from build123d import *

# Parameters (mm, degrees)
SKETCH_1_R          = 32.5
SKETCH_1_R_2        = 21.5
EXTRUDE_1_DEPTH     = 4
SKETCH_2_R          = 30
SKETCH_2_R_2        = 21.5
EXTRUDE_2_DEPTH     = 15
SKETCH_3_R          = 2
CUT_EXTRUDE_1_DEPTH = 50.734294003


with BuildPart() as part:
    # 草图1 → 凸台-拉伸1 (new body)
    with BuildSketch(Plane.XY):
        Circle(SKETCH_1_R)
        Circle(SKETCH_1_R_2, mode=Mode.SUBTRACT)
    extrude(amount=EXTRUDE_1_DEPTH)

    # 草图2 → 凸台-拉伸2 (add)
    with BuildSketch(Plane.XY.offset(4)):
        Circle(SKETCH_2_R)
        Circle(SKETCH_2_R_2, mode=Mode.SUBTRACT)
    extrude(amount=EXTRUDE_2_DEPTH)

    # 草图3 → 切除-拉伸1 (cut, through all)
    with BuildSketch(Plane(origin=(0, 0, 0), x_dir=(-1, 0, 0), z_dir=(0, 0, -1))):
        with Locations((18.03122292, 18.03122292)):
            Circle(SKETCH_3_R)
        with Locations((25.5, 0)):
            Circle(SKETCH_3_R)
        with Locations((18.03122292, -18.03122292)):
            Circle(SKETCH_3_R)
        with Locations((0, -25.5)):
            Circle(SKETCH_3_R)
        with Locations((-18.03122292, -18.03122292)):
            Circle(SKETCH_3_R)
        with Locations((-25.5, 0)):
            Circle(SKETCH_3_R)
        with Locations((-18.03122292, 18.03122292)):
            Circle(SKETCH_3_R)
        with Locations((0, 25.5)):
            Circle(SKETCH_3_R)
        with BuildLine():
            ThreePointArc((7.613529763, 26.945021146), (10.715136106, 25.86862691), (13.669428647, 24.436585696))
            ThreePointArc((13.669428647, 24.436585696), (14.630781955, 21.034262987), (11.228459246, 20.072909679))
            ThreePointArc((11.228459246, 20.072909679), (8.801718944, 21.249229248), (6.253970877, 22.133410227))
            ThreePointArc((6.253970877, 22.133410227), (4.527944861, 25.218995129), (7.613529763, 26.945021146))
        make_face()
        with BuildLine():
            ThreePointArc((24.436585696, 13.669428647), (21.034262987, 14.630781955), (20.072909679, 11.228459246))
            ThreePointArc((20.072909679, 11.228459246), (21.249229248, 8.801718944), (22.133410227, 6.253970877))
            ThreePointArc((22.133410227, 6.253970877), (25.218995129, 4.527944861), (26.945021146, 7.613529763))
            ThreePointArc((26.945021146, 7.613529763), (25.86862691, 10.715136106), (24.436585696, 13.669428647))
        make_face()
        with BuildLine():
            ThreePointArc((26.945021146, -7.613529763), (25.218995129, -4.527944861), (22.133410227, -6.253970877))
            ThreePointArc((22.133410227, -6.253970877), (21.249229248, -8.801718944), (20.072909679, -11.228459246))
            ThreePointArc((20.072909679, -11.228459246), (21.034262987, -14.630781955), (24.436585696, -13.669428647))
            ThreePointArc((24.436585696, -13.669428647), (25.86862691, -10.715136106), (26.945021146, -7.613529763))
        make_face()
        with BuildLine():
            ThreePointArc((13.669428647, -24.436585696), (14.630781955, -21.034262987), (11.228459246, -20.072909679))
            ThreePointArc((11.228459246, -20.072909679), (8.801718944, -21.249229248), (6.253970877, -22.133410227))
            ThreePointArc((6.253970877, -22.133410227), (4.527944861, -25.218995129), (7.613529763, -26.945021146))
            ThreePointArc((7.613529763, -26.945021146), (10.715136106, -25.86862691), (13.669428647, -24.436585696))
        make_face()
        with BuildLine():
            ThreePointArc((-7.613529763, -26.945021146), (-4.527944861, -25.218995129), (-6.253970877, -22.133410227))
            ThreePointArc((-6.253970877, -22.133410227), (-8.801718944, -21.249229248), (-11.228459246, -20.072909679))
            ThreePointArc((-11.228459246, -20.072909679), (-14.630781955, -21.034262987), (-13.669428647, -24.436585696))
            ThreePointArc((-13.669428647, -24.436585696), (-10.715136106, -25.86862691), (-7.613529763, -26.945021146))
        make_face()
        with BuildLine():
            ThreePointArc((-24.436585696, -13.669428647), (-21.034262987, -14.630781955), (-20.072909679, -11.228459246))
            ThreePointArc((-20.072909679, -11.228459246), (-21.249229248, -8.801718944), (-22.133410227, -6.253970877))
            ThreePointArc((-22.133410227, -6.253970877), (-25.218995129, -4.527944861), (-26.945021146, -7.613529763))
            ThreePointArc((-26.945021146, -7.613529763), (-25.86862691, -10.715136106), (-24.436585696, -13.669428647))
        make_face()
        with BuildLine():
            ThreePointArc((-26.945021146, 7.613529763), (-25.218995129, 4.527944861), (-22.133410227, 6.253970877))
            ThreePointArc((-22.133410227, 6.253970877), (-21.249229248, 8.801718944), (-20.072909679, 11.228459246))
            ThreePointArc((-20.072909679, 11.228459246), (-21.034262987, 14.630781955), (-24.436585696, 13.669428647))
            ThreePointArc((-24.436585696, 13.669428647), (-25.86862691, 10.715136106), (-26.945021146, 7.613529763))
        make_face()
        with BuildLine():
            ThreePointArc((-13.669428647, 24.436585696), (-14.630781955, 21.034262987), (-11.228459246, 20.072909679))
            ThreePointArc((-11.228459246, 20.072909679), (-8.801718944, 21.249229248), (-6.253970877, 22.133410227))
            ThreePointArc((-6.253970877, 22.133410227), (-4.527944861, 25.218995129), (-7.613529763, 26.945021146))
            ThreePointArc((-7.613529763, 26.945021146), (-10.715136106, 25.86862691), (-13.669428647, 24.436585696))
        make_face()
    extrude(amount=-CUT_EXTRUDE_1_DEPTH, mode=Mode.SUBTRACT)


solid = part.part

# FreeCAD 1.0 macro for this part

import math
import FreeCAD as App
import Part
import Sketcher
from FreeCAD import Vector
Q = App.Units.Quantity

doc = App.newDocument("Part")
body = doc.addObject("PartDesign::Body", "Body")

# Sketch on XY plane
sketch1 = body.newObject("Sketcher::SketchObject", "Sketch")
sketch1.AttachmentSupport = (doc.getObject("XY_Plane"), [""])
sketch1.MapMode = "FlatFace"
sketch1.addGeometry([
    Part.Circle(Vector(0, 0, 0), Vector(0, 0, 1), 32.5),
    Part.Circle(Vector(0, 0, 0), Vector(0, 0, 1), 21.5),
], False)
sketch1.addConstraint([
    Sketcher.Constraint("Coincident", 0, 3, -1, 1),
    Sketcher.Constraint("Coincident", 1, 3, -1, 1),
    Sketcher.Constraint("Diameter", 0, Q("65 mm")),
    Sketcher.Constraint("Diameter", 1, Q("43 mm")),
])
pad1 = body.newObject("PartDesign::Pad", "Pad")
pad1.Profile = sketch1
pad1.Length = 4

# Sketch on XY plane
sketch2 = body.newObject("Sketcher::SketchObject", "Sketch001")
sketch2.AttachmentSupport = (doc.getObject("XY_Plane"), [""])
sketch2.MapMode = "FlatFace"
sketch2.AttachmentOffset = App.Placement(Vector(0, 0, 4), App.Rotation())
sketch2.addGeometry([
    Part.Circle(Vector(0, 0, 0), Vector(0, 0, 1), 30),
    Part.Circle(Vector(0, 0, 0), Vector(0, 0, 1), 21.5),
], False)
sketch2.addConstraint([
    Sketcher.Constraint("Coincident", 0, 3, -1, 1),
    Sketcher.Constraint("Coincident", 1, 3, -1, 1),
    Sketcher.Constraint("Diameter", 0, Q("60 mm")),
    Sketcher.Constraint("Diameter", 1, Q("43 mm")),
])
pad2 = body.newObject("PartDesign::Pad", "Pad001")
pad2.Profile = sketch2
pad2.Length = 15

# Sketch on XY plane
sketch3 = body.newObject("Sketcher::SketchObject", "Sketch002")
sketch3.AttachmentSupport = (doc.getObject("XY_Plane"), [""])
sketch3.MapMode = "FlatFace"
sketch3.addGeometry([
    Part.Circle(Vector(-18.031223, 18.031223, 0), Vector(0, 0, 1), 2),  # 0
    Part.Circle(Vector(-25.5, 0, 0), Vector(0, 0, 1), 2),  # 1
    Part.Circle(Vector(-18.031223, -18.031223, 0), Vector(0, 0, 1), 2),  # 2
    Part.Circle(Vector(0, -25.5, 0), Vector(0, 0, 1), 2),  # 3
    Part.Circle(Vector(18.031223, -18.031223, 0), Vector(0, 0, 1), 2),  # 4
    Part.Circle(Vector(25.5, 0, 0), Vector(0, 0, 1), 2),  # 5
    Part.Circle(Vector(18.031223, 18.031223, 0), Vector(0, 0, 1), 2),  # 6
    Part.Circle(Vector(0, 25.5, 0), Vector(0, 0, 1), 2),  # 7
    Part.ArcOfCircle(Part.Circle(Vector(0, 0, 0), Vector(0, 0, 1), 28), math.radians(105.77806), math.radians(119.22194)),  # 8
    Part.ArcOfCircle(Part.Circle(Vector(-6.93375, 24.539216, 0), Vector(0, 0, 1), 2.5), math.radians(-74.22194), math.radians(105.77806)),  # 9
    Part.ArcOfCircle(Part.Circle(Vector(0, 0, 0), Vector(0, 0, 1), 23), math.radians(105.77806), math.radians(119.22194)),  # 10
    Part.ArcOfCircle(Part.Circle(Vector(-12.448944, 22.254748, 0), Vector(0, 0, 1), 2.5), math.radians(119.22194), math.radians(299.22194)),  # 11
    Part.ArcOfCircle(Part.Circle(Vector(-22.254748, 12.448944, 0), Vector(0, 0, 1), 2.5), math.radians(-29.22194), math.radians(150.77806)),  # 12
    Part.ArcOfCircle(Part.Circle(Vector(0, 0, 0), Vector(0, 0, 1), 23), math.radians(150.77806), math.radians(164.22194)),  # 13
    Part.ArcOfCircle(Part.Circle(Vector(-24.539216, 6.93375, 0), Vector(0, 0, 1), 2.5), math.radians(164.22194), math.radians(344.22194)),  # 14
    Part.ArcOfCircle(Part.Circle(Vector(0, 0, 0), Vector(0, 0, 1), 28), math.radians(150.77806), math.radians(164.22194)),  # 15
    Part.ArcOfCircle(Part.Circle(Vector(-24.539216, -6.93375, 0), Vector(0, 0, 1), 2.5), math.radians(15.77806), math.radians(195.77806)),  # 16
    Part.ArcOfCircle(Part.Circle(Vector(0, 0, 0), Vector(0, 0, 1), 23), math.radians(-164.22194), math.radians(-150.77806)),  # 17
    Part.ArcOfCircle(Part.Circle(Vector(-22.254748, -12.448944, 0), Vector(0, 0, 1), 2.5), math.radians(-150.77806), math.radians(29.22194)),  # 18
    Part.ArcOfCircle(Part.Circle(Vector(0, 0, 0), Vector(0, 0, 1), 28), math.radians(-164.22194), math.radians(-150.77806)),  # 19
    Part.ArcOfCircle(Part.Circle(Vector(-12.448944, -22.254748, 0), Vector(0, 0, 1), 2.5), math.radians(60.77806), math.radians(240.77806)),  # 20
    Part.ArcOfCircle(Part.Circle(Vector(0, 0, 0), Vector(0, 0, 1), 23), math.radians(-119.22194), math.radians(-105.77806)),  # 21
    Part.ArcOfCircle(Part.Circle(Vector(-6.93375, -24.539216, 0), Vector(0, 0, 1), 2.5), math.radians(-105.77806), math.radians(74.22194)),  # 22
    Part.ArcOfCircle(Part.Circle(Vector(0, 0, 0), Vector(0, 0, 1), 28), math.radians(-119.22194), math.radians(-105.77806)),  # 23
    Part.ArcOfCircle(Part.Circle(Vector(6.93375, -24.539216, 0), Vector(0, 0, 1), 2.5), math.radians(105.77806), math.radians(285.77806)),  # 24
    Part.ArcOfCircle(Part.Circle(Vector(0, 0, 0), Vector(0, 0, 1), 23), math.radians(-74.22194), math.radians(-60.77806)),  # 25
    Part.ArcOfCircle(Part.Circle(Vector(12.448944, -22.254748, 0), Vector(0, 0, 1), 2.5), math.radians(-60.77806), math.radians(119.22194)),  # 26
    Part.ArcOfCircle(Part.Circle(Vector(0, 0, 0), Vector(0, 0, 1), 28), math.radians(-74.22194), math.radians(-60.77806)),  # 27
    Part.ArcOfCircle(Part.Circle(Vector(22.254748, -12.448944, 0), Vector(0, 0, 1), 2.5), math.radians(150.77806), math.radians(330.77806)),  # 28
    Part.ArcOfCircle(Part.Circle(Vector(0, 0, 0), Vector(0, 0, 1), 23), math.radians(-29.22194), math.radians(-15.77806)),  # 29
    Part.ArcOfCircle(Part.Circle(Vector(24.539216, -6.93375, 0), Vector(0, 0, 1), 2.5), math.radians(-15.77806), math.radians(164.22194)),  # 30
    Part.ArcOfCircle(Part.Circle(Vector(0, 0, 0), Vector(0, 0, 1), 28), math.radians(-29.22194), math.radians(-15.77806)),  # 31
    Part.ArcOfCircle(Part.Circle(Vector(24.539216, 6.93375, 0), Vector(0, 0, 1), 2.5), math.radians(-164.22194), math.radians(15.77806)),  # 32
    Part.ArcOfCircle(Part.Circle(Vector(0, 0, 0), Vector(0, 0, 1), 23), math.radians(15.77806), math.radians(29.22194)),  # 33
    Part.ArcOfCircle(Part.Circle(Vector(22.254748, 12.448944, 0), Vector(0, 0, 1), 2.5), math.radians(29.22194), math.radians(209.22194)),  # 34
    Part.ArcOfCircle(Part.Circle(Vector(0, 0, 0), Vector(0, 0, 1), 28), math.radians(15.77806), math.radians(29.22194)),  # 35
    Part.ArcOfCircle(Part.Circle(Vector(12.448944, 22.254748, 0), Vector(0, 0, 1), 2.5), math.radians(-119.22194), math.radians(60.77806)),  # 36
    Part.ArcOfCircle(Part.Circle(Vector(0, 0, 0), Vector(0, 0, 1), 23), math.radians(60.77806), math.radians(74.22194)),  # 37
    Part.ArcOfCircle(Part.Circle(Vector(6.93375, 24.539216, 0), Vector(0, 0, 1), 2.5), math.radians(74.22194), math.radians(254.22194)),  # 38
    Part.ArcOfCircle(Part.Circle(Vector(0, 0, 0), Vector(0, 0, 1), 28), math.radians(60.77806), math.radians(74.22194)),  # 39
], False)
sketch3.addConstraint([
    Sketcher.Constraint("Tangent", 8, 1, 9, 2),
    Sketcher.Constraint("Tangent", 9, 1, 10, 1),
    Sketcher.Constraint("Tangent", 10, 2, 11, 2),
    Sketcher.Constraint("Tangent", 11, 1, 8, 2),
    Sketcher.Constraint("Tangent", 12, 1, 13, 1),
    Sketcher.Constraint("Tangent", 13, 2, 14, 2),
    Sketcher.Constraint("Tangent", 14, 1, 15, 2),
    Sketcher.Constraint("Tangent", 15, 1, 12, 2),
    Sketcher.Constraint("Tangent", 16, 1, 17, 1),
    Sketcher.Constraint("Tangent", 17, 2, 18, 2),
    Sketcher.Constraint("Tangent", 18, 1, 19, 2),
    Sketcher.Constraint("Tangent", 19, 1, 16, 2),
    Sketcher.Constraint("Tangent", 20, 1, 21, 1),
    Sketcher.Constraint("Tangent", 21, 2, 22, 2),
    Sketcher.Constraint("Tangent", 22, 1, 23, 2),
    Sketcher.Constraint("Tangent", 23, 1, 20, 2),
    Sketcher.Constraint("Tangent", 24, 1, 25, 1),
    Sketcher.Constraint("Tangent", 25, 2, 26, 2),
    Sketcher.Constraint("Tangent", 26, 1, 27, 2),
    Sketcher.Constraint("Tangent", 27, 1, 24, 2),
    Sketcher.Constraint("Tangent", 28, 1, 29, 1),
    Sketcher.Constraint("Tangent", 29, 2, 30, 2),
    Sketcher.Constraint("Tangent", 30, 1, 31, 2),
    Sketcher.Constraint("Tangent", 31, 1, 28, 2),
    Sketcher.Constraint("Tangent", 32, 1, 33, 1),
    Sketcher.Constraint("Tangent", 33, 2, 34, 2),
    Sketcher.Constraint("Tangent", 34, 1, 35, 2),
    Sketcher.Constraint("Tangent", 35, 1, 32, 2),
    Sketcher.Constraint("Tangent", 36, 1, 37, 1),
    Sketcher.Constraint("Tangent", 37, 2, 38, 2),
    Sketcher.Constraint("Tangent", 38, 1, 39, 2),
    Sketcher.Constraint("Tangent", 39, 1, 36, 2),
    Sketcher.Constraint("Coincident", 8, 3, -1, 1),
    Sketcher.Constraint("Coincident", 10, 3, -1, 1),
    Sketcher.Constraint("Coincident", 13, 3, -1, 1),
    Sketcher.Constraint("Coincident", 15, 3, -1, 1),
    Sketcher.Constraint("Coincident", 17, 3, -1, 1),
    Sketcher.Constraint("Coincident", 19, 3, -1, 1),
    Sketcher.Constraint("Coincident", 21, 3, -1, 1),
    Sketcher.Constraint("Coincident", 23, 3, -1, 1),
    Sketcher.Constraint("Coincident", 25, 3, -1, 1),
    Sketcher.Constraint("Coincident", 27, 3, -1, 1),
    Sketcher.Constraint("Coincident", 29, 3, -1, 1),
    Sketcher.Constraint("Coincident", 31, 3, -1, 1),
    Sketcher.Constraint("Coincident", 33, 3, -1, 1),
    Sketcher.Constraint("Coincident", 35, 3, -1, 1),
    Sketcher.Constraint("Coincident", 37, 3, -1, 1),
    Sketcher.Constraint("Coincident", 39, 3, -1, 1),
    Sketcher.Constraint("Equal", 0, 1),
    Sketcher.Constraint("Equal", 1, 2),
    Sketcher.Constraint("Equal", 2, 3),
    Sketcher.Constraint("Equal", 3, 4),
    Sketcher.Constraint("Equal", 4, 5),
    Sketcher.Constraint("Equal", 5, 6),
    Sketcher.Constraint("Equal", 6, 7),
    Sketcher.Constraint("Equal", 11, 12),
    Sketcher.Constraint("Equal", 10, 13),
    Sketcher.Constraint("Equal", 14, 16),
    Sketcher.Constraint("Equal", 13, 17),
    Sketcher.Constraint("Equal", 18, 20),
    Sketcher.Constraint("Equal", 17, 21),
    Sketcher.Constraint("Equal", 22, 24),
    Sketcher.Constraint("Equal", 21, 25),
    Sketcher.Constraint("Equal", 26, 28),
    Sketcher.Constraint("Equal", 25, 29),
    Sketcher.Constraint("Equal", 30, 32),
    Sketcher.Constraint("Equal", 29, 33),
    Sketcher.Constraint("Equal", 34, 36),
    Sketcher.Constraint("Equal", 33, 37),
    Sketcher.Constraint("Symmetric", 0, 3, 4, 3, -1, 1),
    Sketcher.Constraint("Symmetric", 1, 3, 5, 3, -1, 1),
    Sketcher.Constraint("Symmetric", 2, 3, 6, 3, -1, 1),
    Sketcher.Constraint("Symmetric", 3, 3, 7, 3, -1, 1),
    Sketcher.Constraint("Symmetric", 2, 3, 4, 3, -2),
    Sketcher.Constraint("PointOnObject", 1, 3, -1),
    Sketcher.Constraint("PointOnObject", 3, 3, -2),
    Sketcher.Constraint("Horizontal", 22, 3, 24, 3),
    Sketcher.Constraint("Horizontal", 20, 3, 26, 3),
    Sketcher.Constraint("Horizontal", 18, 3, 28, 3),
    Sketcher.Constraint("Horizontal", 16, 3, 30, 3),
    Sketcher.Constraint("Horizontal", 14, 3, 32, 3),
    Sketcher.Constraint("Horizontal", 12, 3, 34, 3),
    Sketcher.Constraint("Horizontal", 11, 3, 36, 3),
    Sketcher.Constraint("Horizontal", 9, 3, 38, 3),
    Sketcher.Constraint("Vertical", 14, 3, 16, 3),
    Sketcher.Constraint("Vertical", 12, 3, 18, 3),
    Sketcher.Constraint("Vertical", 11, 3, 20, 3),
    Sketcher.Constraint("Vertical", 9, 3, 22, 3),
    Sketcher.Constraint("Diameter", 0, Q("4 mm")),
    Sketcher.Constraint("Radius", 8, Q("28 mm")),
    Sketcher.Constraint("Radius", 10, Q("23 mm")),
    Sketcher.Constraint("DistanceX", 1, 3, -1, 1, Q("25.5 mm")),
    Sketcher.Constraint("DistanceY", 3, 3, -1, 1, Q("25.5 mm")),
    Sketcher.Constraint("DistanceX", 9, 3, -1, 1, Q("6.93375 mm")),
    Sketcher.Constraint("DistanceY", -1, 1, 14, 3, Q("6.93375 mm")),
    Sketcher.Constraint("DistanceX", 10, 2, -1, 1, Q("11.228459 mm")),
    Sketcher.Constraint("DistanceX", 12, 1, -1, 1, Q("20.07291 mm")),
    Sketcher.Constraint("DistanceX", 0, 3, -1, 1, Q("18.031223 mm")),
    Sketcher.Constraint("DistanceY", -1, 1, 0, 3, Q("18.031223 mm")),
])
pocket1 = body.newObject("PartDesign::Pocket", "Pocket")
pocket1.Profile = sketch3
pocket1.Type = "ThroughAll"
pocket1.Reversed = True

doc.recompute()
